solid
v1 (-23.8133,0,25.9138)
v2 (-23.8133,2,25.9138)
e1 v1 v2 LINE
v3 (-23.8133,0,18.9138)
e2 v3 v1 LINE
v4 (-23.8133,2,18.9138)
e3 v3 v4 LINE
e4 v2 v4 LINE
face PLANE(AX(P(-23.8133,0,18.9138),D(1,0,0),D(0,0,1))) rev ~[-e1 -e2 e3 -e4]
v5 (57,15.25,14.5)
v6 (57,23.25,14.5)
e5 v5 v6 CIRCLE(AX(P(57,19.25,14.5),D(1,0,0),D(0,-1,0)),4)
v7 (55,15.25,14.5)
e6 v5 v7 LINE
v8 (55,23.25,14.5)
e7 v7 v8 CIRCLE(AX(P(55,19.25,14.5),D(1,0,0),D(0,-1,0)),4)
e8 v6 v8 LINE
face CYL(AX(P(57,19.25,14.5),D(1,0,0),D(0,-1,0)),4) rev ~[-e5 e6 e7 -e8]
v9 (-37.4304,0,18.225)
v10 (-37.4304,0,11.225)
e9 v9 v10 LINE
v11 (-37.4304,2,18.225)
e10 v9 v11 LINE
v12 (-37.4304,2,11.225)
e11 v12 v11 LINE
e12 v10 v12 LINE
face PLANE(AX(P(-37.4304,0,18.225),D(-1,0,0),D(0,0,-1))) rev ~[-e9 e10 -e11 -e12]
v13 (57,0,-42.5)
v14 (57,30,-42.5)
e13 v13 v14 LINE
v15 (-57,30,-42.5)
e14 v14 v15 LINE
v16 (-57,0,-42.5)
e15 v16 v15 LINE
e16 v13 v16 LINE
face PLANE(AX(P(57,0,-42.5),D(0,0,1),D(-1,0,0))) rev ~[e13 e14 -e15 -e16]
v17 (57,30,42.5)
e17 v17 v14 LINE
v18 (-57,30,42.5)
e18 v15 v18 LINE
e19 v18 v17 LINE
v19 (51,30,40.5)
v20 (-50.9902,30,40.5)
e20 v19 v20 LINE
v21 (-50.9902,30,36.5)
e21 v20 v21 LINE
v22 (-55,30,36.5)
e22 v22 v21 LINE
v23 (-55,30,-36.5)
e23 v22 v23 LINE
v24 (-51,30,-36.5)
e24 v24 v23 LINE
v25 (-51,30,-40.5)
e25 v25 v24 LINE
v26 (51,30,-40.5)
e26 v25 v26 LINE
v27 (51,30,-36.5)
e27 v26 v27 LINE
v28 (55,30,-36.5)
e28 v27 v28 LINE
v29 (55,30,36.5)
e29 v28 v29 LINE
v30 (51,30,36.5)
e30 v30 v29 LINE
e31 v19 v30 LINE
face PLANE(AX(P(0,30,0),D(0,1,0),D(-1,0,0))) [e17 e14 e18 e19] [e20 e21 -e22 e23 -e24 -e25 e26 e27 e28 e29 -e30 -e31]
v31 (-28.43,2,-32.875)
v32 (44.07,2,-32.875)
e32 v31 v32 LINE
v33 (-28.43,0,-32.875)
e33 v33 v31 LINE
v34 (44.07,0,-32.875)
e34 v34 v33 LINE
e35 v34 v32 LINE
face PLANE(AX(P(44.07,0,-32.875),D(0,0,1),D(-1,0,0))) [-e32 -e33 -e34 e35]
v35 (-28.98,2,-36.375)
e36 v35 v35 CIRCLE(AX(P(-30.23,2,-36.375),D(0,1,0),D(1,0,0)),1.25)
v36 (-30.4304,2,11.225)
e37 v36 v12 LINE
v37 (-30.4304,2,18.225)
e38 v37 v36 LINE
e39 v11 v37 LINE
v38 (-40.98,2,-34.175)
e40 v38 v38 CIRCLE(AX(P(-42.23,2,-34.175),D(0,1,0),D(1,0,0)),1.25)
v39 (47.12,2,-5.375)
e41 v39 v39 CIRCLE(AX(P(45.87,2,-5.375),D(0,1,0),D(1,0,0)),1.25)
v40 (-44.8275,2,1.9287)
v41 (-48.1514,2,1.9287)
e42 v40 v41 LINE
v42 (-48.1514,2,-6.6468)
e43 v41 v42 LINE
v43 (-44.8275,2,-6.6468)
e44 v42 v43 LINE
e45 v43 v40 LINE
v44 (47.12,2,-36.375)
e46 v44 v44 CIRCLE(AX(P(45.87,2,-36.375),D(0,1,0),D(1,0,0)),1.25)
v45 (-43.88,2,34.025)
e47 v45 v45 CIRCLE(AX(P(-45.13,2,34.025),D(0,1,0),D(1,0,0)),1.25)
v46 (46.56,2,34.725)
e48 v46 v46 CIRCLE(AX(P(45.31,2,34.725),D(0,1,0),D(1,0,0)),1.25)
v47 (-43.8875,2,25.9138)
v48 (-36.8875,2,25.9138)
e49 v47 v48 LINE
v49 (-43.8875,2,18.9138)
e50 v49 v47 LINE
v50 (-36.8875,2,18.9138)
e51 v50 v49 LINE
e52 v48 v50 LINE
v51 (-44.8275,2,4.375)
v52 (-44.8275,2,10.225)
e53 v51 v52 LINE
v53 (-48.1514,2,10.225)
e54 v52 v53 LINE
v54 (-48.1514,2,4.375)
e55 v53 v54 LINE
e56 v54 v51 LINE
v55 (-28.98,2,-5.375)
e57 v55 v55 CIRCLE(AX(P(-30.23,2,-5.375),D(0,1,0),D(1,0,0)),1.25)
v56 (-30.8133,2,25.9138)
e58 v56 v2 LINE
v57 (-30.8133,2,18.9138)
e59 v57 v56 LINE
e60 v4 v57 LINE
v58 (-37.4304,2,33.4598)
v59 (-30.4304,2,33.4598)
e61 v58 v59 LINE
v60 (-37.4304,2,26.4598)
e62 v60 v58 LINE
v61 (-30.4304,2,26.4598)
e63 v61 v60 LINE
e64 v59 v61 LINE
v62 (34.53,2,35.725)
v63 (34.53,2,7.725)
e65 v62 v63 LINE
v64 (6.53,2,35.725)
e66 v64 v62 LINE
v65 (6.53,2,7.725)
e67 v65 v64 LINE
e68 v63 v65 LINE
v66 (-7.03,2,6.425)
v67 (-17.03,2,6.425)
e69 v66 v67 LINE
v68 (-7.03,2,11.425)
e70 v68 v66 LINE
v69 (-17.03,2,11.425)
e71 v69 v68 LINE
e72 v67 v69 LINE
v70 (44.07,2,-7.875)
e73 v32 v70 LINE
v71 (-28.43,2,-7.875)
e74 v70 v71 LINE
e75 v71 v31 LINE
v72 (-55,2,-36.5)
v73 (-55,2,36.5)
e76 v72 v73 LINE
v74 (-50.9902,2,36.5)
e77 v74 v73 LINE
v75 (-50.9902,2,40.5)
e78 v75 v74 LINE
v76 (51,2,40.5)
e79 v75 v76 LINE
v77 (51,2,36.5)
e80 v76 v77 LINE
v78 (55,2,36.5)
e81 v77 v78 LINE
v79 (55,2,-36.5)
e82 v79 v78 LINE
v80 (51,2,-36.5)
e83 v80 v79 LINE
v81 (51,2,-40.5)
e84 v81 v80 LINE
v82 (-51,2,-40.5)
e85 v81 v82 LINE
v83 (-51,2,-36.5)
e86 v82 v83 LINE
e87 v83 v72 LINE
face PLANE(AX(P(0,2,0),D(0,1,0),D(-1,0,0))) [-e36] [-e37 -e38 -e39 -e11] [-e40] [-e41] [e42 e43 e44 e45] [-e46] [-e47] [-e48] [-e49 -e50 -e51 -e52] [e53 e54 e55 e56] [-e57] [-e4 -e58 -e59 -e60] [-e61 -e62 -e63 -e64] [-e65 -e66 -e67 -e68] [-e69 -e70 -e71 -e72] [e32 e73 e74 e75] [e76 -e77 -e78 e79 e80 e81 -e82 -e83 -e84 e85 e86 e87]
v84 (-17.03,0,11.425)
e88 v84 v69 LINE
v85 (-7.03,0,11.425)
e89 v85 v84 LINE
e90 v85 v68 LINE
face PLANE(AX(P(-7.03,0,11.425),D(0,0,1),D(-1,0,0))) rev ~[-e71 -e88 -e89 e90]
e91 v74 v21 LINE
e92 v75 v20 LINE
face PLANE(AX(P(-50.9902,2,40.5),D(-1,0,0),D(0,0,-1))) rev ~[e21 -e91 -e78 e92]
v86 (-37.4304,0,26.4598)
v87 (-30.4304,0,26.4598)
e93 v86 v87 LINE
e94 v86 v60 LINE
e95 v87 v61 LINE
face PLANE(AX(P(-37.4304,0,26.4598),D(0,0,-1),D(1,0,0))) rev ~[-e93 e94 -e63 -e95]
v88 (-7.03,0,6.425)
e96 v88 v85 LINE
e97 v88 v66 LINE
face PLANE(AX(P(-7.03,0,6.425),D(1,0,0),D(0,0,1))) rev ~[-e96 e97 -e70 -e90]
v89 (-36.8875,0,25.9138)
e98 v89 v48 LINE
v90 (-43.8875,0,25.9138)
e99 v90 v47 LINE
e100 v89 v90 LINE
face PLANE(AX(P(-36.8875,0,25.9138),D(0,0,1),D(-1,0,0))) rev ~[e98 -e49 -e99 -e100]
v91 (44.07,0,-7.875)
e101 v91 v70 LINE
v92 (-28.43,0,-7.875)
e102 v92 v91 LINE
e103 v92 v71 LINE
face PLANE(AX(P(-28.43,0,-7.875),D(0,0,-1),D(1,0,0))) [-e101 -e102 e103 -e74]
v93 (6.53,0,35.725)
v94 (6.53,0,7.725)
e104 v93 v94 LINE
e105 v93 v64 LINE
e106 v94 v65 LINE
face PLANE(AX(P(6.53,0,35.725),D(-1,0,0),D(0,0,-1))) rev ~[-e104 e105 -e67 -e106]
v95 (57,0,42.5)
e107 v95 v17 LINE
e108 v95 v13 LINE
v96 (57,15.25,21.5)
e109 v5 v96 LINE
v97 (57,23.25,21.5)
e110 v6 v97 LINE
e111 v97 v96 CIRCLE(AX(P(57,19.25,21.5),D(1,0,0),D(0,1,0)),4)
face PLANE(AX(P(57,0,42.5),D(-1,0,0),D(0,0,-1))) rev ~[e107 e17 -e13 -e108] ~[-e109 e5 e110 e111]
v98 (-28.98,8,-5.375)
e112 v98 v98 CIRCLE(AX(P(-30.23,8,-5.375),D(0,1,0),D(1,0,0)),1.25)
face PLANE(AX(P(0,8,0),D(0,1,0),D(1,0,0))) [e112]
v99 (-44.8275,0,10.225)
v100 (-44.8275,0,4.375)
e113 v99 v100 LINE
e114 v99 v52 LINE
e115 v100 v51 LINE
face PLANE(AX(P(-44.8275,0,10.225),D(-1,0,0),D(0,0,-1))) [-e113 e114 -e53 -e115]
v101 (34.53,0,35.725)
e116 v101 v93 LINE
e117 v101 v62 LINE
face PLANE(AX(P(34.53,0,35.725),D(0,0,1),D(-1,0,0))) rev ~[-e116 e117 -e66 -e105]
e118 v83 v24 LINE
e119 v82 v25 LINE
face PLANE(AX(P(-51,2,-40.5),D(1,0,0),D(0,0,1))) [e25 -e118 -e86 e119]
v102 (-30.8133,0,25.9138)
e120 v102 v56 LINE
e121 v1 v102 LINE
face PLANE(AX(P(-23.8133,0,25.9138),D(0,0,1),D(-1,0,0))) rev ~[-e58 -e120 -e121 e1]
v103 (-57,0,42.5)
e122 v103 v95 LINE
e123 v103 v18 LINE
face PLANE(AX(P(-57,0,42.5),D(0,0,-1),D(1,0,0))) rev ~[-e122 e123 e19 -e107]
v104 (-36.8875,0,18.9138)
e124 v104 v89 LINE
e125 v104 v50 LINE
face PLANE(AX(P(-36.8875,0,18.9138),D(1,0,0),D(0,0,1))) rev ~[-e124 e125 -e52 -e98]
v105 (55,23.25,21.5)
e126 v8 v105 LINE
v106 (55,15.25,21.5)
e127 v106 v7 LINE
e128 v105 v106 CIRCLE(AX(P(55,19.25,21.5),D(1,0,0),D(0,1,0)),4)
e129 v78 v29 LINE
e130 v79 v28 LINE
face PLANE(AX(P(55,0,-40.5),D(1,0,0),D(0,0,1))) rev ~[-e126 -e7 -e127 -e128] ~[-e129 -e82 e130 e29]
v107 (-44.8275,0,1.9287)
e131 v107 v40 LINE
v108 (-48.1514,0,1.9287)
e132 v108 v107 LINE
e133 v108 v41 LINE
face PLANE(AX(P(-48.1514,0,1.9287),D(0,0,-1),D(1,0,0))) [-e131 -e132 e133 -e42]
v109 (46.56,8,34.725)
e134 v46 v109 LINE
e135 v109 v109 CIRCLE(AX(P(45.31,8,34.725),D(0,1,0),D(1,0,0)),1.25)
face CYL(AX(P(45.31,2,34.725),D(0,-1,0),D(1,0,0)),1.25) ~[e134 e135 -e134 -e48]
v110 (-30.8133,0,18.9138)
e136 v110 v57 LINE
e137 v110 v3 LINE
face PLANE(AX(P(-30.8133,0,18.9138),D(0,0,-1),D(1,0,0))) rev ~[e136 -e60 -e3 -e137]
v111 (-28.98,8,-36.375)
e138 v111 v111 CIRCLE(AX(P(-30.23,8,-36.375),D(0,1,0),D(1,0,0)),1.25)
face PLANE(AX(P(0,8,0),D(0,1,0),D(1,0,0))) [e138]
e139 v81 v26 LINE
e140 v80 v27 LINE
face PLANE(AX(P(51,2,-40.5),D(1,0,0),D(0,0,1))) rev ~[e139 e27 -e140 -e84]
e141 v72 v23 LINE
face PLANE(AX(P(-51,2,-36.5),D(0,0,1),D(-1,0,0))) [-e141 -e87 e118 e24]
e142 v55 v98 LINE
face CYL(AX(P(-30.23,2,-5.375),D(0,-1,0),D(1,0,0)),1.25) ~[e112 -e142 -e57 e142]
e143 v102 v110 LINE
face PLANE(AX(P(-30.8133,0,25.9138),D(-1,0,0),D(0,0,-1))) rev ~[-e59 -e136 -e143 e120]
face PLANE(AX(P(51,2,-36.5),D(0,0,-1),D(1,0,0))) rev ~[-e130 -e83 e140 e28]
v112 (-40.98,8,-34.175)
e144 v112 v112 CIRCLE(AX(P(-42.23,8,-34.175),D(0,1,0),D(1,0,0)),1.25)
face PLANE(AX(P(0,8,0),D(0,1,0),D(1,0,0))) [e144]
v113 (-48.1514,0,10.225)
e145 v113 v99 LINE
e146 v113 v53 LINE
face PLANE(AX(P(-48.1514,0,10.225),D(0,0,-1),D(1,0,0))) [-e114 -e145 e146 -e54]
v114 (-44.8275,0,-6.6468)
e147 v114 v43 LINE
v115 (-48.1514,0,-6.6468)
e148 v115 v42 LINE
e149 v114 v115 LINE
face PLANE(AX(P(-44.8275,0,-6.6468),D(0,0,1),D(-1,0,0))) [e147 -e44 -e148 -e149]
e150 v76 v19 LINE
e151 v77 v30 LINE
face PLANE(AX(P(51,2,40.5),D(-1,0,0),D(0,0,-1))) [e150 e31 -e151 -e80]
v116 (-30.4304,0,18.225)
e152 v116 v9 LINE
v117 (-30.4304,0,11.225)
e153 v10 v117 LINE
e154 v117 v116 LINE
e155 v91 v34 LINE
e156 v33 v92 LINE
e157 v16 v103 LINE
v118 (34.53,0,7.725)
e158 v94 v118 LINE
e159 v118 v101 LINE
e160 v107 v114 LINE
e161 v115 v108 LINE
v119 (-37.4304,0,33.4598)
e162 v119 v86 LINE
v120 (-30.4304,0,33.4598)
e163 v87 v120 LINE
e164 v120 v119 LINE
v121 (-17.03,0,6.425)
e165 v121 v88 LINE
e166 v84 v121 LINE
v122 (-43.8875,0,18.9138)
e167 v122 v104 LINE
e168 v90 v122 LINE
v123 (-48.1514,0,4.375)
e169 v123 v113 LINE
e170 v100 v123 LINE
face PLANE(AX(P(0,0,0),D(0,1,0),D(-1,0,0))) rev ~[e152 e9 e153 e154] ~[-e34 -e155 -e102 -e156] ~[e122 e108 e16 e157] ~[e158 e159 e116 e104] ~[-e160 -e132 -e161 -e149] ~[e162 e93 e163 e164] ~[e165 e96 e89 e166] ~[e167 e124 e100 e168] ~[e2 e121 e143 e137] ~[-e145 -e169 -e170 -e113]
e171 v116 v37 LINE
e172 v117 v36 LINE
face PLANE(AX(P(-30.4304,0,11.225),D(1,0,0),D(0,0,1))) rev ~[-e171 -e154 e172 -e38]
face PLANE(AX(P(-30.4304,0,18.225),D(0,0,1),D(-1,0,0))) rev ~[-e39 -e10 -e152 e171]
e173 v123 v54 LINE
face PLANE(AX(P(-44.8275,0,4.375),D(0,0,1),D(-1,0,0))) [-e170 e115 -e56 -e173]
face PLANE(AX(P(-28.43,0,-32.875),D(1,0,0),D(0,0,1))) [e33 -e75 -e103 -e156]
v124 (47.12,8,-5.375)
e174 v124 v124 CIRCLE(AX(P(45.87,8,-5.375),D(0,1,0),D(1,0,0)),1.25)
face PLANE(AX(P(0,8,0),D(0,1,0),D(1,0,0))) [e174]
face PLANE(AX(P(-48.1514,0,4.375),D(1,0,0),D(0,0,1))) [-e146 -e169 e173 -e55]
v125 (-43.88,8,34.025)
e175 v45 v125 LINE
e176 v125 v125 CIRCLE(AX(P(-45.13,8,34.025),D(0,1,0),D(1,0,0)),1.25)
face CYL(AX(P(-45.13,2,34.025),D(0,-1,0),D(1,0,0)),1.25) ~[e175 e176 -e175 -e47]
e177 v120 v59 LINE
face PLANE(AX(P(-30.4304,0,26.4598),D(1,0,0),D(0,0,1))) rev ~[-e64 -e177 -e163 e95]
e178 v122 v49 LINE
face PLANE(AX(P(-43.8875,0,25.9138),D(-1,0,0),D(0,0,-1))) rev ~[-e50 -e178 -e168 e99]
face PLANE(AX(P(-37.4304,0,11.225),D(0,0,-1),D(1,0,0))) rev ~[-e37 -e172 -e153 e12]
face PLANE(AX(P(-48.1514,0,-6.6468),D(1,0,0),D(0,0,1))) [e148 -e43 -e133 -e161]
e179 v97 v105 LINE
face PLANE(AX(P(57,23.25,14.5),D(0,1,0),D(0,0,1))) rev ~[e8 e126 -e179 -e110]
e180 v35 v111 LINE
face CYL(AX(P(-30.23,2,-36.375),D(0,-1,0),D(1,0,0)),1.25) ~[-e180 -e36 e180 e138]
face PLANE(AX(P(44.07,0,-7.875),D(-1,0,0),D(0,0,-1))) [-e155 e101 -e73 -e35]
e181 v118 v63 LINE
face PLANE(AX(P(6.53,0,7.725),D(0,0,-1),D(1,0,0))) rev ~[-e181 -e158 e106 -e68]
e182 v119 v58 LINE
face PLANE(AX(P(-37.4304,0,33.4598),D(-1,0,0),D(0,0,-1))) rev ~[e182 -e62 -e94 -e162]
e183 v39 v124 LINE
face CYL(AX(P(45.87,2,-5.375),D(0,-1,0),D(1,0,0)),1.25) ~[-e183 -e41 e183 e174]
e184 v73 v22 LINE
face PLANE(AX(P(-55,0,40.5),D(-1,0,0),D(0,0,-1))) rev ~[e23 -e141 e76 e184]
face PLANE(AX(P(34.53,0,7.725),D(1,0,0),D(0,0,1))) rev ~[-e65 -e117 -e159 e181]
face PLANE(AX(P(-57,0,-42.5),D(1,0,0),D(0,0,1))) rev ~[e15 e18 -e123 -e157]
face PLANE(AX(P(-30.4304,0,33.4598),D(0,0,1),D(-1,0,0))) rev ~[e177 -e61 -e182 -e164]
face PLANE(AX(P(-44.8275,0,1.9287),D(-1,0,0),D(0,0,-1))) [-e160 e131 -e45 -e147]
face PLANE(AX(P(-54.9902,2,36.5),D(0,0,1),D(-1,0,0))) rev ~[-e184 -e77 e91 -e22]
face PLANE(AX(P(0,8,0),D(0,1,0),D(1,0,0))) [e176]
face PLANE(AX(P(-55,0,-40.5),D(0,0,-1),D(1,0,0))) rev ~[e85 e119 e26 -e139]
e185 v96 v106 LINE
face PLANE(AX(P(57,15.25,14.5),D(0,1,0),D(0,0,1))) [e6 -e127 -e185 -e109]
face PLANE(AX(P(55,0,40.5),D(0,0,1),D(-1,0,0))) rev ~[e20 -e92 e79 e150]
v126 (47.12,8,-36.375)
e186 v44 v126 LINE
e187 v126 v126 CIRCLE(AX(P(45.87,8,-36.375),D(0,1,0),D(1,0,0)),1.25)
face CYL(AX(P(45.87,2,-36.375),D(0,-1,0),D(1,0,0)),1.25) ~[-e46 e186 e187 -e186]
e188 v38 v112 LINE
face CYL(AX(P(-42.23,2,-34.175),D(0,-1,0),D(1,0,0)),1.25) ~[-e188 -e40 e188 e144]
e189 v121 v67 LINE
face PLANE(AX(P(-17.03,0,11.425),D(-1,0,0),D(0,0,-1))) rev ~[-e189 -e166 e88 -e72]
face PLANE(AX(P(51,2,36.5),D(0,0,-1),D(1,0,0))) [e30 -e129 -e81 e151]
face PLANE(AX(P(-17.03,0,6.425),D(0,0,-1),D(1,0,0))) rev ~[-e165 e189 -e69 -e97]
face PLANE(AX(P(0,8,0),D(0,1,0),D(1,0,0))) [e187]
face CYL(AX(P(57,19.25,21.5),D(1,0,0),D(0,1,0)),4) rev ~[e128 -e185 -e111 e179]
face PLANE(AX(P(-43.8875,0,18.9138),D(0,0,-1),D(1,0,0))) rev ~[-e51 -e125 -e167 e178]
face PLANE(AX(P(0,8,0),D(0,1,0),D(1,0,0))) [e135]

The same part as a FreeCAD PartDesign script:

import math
import FreeCAD as App
import Part
import Sketcher

V = App.Vector
Q = App.Units.Quantity

doc = App.newDocument("Part")
body = doc.addObject("PartDesign::Body", "Body")

# Sketch on XZ plane
sketch1 = body.newObject("Sketcher::SketchObject", "Sketch")
sketch1.AttachmentSupport = (doc.getObject("XZ_Plane"), [""])
sketch1.MapMode = "FlatFace"
sketch1.addGeometry([
    Part.LineSegment(V(-57, -42, 0), V(-57, 42, 0)),  # 0
    Part.LineSegment(V(-57, 42, 0), V(57, 42, 0)),  # 1
    Part.LineSegment(V(57, 42, 0), V(57, -42, 0)),  # 2
    Part.LineSegment(V(57, -42, 0), V(-57, -42, 0)),  # 3
    Part.LineSegment(V(-55, 40, 0), V(-55, -40, 0)),  # 4
    Part.LineSegment(V(-55, -40, 0), V(55, -40, 0)),  # 5
    Part.LineSegment(V(55, -40, 0), V(55, 40, 0)),  # 6
    Part.LineSegment(V(55, 40, 0), V(-55, 40, 0)),  # 7
], False)
sketch1.addConstraint([
    Sketcher.Constraint("Coincident", 0, 2, 1, 1),
    Sketcher.Constraint("Coincident", 1, 2, 2, 1),
    Sketcher.Constraint("Coincident", 2, 2, 3, 1),
    Sketcher.Constraint("Coincident", 3, 2, 0, 1),
    Sketcher.Constraint("Coincident", 4, 2, 5, 1),
    Sketcher.Constraint("Coincident", 5, 2, 6, 1),
    Sketcher.Constraint("Coincident", 6, 2, 7, 1),
    Sketcher.Constraint("Coincident", 7, 2, 4, 1),
    Sketcher.Constraint("Vertical", 0),
    Sketcher.Constraint("Horizontal", 1),
    Sketcher.Constraint("Vertical", 2),
    Sketcher.Constraint("Horizontal", 3),
    Sketcher.Constraint("Vertical", 4),
    Sketcher.Constraint("Horizontal", 5),
    Sketcher.Constraint("Vertical", 6),
    Sketcher.Constraint("Horizontal", 7),
    Sketcher.Constraint("Symmetric", 0, 2, 2, 2, -1, 1),
    Sketcher.Constraint("Symmetric", 4, 2, 6, 2, -1, 1),
    Sketcher.Constraint("DistanceX", 1, 1, 1, 2, Q("114 mm")),
    Sketcher.Constraint("DistanceX", 5, 1, 5, 2, Q("110 mm")),
    Sketcher.Constraint("DistanceY", 0, 1, 0, 2, Q("85 mm")),
    Sketcher.Constraint("DistanceY", 4, 2, 4, 1, Q("81 mm")),
])
pad1 = body.newObject("PartDesign::Pad", "Pad")
pad1.Profile = sketch1
pad1.Length = 30
pad1.Reversed = True

# Sketch on XZ plane
sketch2 = body.newObject("Sketcher::SketchObject", "Sketch001")
sketch2.AttachmentSupport = (doc.getObject("XZ_Plane"), [""])
sketch2.MapMode = "FlatFace"
sketch2.addGeometry([
    Part.LineSegment(V(55, 40, 0), V(55, -40, 0)),
    Part.LineSegment(V(55, -40, 0), V(-55, -40, 0)),
    Part.LineSegment(V(-55, -40, 0), V(-55, 40, 0)),
    Part.LineSegment(V(-55, 40, 0), V(55, 40, 0)),
], False)
sketch2.addConstraint([
    Sketcher.Constraint("Coincident", 0, 2, 1, 1),
    Sketcher.Constraint("Coincident", 1, 2, 2, 1),
    Sketcher.Constraint("Coincident", 2, 2, 3, 1),
    Sketcher.Constraint("Coincident", 3, 2, 0, 1),
    Sketcher.Constraint("Vertical", 0),
    Sketcher.Constraint("Horizontal", 1),
    Sketcher.Constraint("Vertical", 2),
    Sketcher.Constraint("Horizontal", 3),
    Sketcher.Constraint("Symmetric", 0, 2, 2, 2, -1, 1),
    Sketcher.Constraint("DistanceX", 1, 2, 1, 1, Q("110 mm")),
    Sketcher.Constraint("DistanceY", 0, 2, 0, 1, Q("81 mm")),
])
pad2 = body.newObject("PartDesign::Pad", "Pad001")
pad2.Profile = sketch2
pad2.Length = 2
pad2.Reversed = True

# Sketch on XZ plane
sketch3 = body.newObject("Sketcher::SketchObject", "Sketch002")
sketch3.AttachmentSupport = (doc.getObject("XZ_Plane"), [""])
sketch3.MapMode = "FlatFace"
sketch3.addGeometry([
    Part.LineSegment(V(-28.4, -32.9, 0), V(44.1, -32.9, 0)),  # 0
    Part.LineSegment(V(44.1, -32.9, 0), V(44.1, -7.9, 0)),  # 1
    Part.LineSegment(V(44.1, -7.9, 0), V(-28.4, -7.9, 0)),  # 2
    Part.LineSegment(V(-28.4, -7.9, 0), V(-28.4, -32.9, 0)),  # 3
    Part.LineSegment(V(34.5, 7.7, 0), V(34.5, 35.7, 0)),  # 4
    Part.LineSegment(V(34.5, 35.7, 0), V(6.5, 35.7, 0)),  # 5
    Part.LineSegment(V(6.5, 35.7, 0), V(6.5, 7.7, 0)),  # 6
    Part.LineSegment(V(6.5, 7.7, 0), V(34.5, 7.7, 0)),  # 7
    Part.LineSegment(V(-7, 6.4, 0), V(-7, 11.4, 0)),  # 8
    Part.LineSegment(V(-7, 11.4, 0), V(-17, 11.4, 0)),  # 9
    Part.LineSegment(V(-17, 11.4, 0), V(-17, 6.4, 0)),  # 10
    Part.LineSegment(V(-17, 6.4, 0), V(-7, 6.4, 0)),  # 11
    Part.LineSegment(V(-30.4, 11.2, 0), V(-30.4, 18.2, 0)),  # 12
    Part.LineSegment(V(-30.4, 18.2, 0), V(-37.4, 18.2, 0)),  # 13
    Part.LineSegment(V(-37.4, 18.2, 0), V(-37.4, 11.2, 0)),  # 14
    Part.LineSegment(V(-37.4, 11.2, 0), V(-30.4, 11.2, 0)),  # 15
    Part.LineSegment(V(-30.4, 26.5, 0), V(-30.4, 33.5, 0)),  # 16
    Part.LineSegment(V(-30.4, 33.5, 0), V(-37.4, 33.5, 0)),  # 17
    Part.LineSegment(V(-37.4, 33.5, 0), V(-37.4, 26.5, 0)),  # 18
    Part.LineSegment(V(-37.4, 26.5, 0), V(-30.4, 26.5, 0)),  # 19
    Part.LineSegment(V(-23.8, 18.9, 0), V(-23.8, 25.9, 0)),  # 20
    Part.LineSegment(V(-23.8, 25.9, 0), V(-30.8, 25.9, 0)),  # 21
    Part.LineSegment(V(-30.8, 25.9, 0), V(-30.8, 18.9, 0)),  # 22
    Part.LineSegment(V(-30.8, 18.9, 0), V(-23.8, 18.9, 0)),  # 23
    Part.LineSegment(V(-36.9, 18.9, 0), V(-36.9, 25.9, 0)),  # 24
    Part.LineSegment(V(-36.9, 25.9, 0), V(-43.9, 25.9, 0)),  # 25
    Part.LineSegment(V(-43.9, 25.9, 0), V(-43.9, 18.9, 0)),  # 26
    Part.LineSegment(V(-43.9, 18.9, 0), V(-36.9, 18.9, 0)),  # 27
    Part.LineSegment(V(-48.2, -6.6, 0), V(-44.8, -6.6, 0)),  # 28
    Part.LineSegment(V(-44.8, -6.6, 0), V(-44.8, 1.9, 0)),  # 29
    Part.LineSegment(V(-44.8, 1.9, 0), V(-48.2, 1.9, 0)),  # 30
    Part.LineSegment(V(-48.2, 1.9, 0), V(-48.2, -6.6, 0)),  # 31
    Part.LineSegment(V(-48.2, 4.4, 0), V(-44.8, 4.4, 0)),  # 32
    Part.LineSegment(V(-44.8, 4.4, 0), V(-44.8, 10.2, 0)),  # 33
    Part.LineSegment(V(-44.8, 10.2, 0), V(-48.2, 10.2, 0)),  # 34
    Part.LineSegment(V(-48.2, 10.2, 0), V(-48.2, 4.4, 0)),  # 35
], False)
sketch3.addConstraint([
    Sketcher.Constraint("Coincident", 0, 2, 1, 1),
    Sketcher.Constraint("Coincident", 1, 2, 2, 1),
    Sketcher.Constraint("Coincident", 2, 2, 3, 1),
    Sketcher.Constraint("Coincident", 3, 2, 0, 1),
    Sketcher.Constraint("Coincident", 4, 2, 5, 1),
    Sketcher.Constraint("Coincident", 5, 2, 6, 1),
    Sketcher.Constraint("Coincident", 6, 2, 7, 1),
    Sketcher.Constraint("Coincident", 7, 2, 4, 1),
    Sketcher.Constraint("Coincident", 8, 2, 9, 1),
    Sketcher.Constraint("Coincident", 9, 2, 10, 1),
    Sketcher.Constraint("Coincident", 10, 2, 11, 1),
    Sketcher.Constraint("Coincident", 11, 2, 8, 1),
    Sketcher.Constraint("Coincident", 12, 2, 13, 1),
    Sketcher.Constraint("Coincident", 13, 2, 14, 1),
    Sketcher.Constraint("Coincident", 14, 2, 15, 1),
    Sketcher.Constraint("Coincident", 15, 2, 12, 1),
    Sketcher.Constraint("Coincident", 16, 2, 17, 1),
    Sketcher.Constraint("Coincident", 17, 2, 18, 1),
    Sketcher.Constraint("Coincident", 18, 2, 19, 1),
    Sketcher.Constraint("Coincident", 19, 2, 16, 1),
    Sketcher.Constraint("Coincident", 20, 2, 21, 1),
    Sketcher.Constraint("Coincident", 21, 2, 22, 1),
    Sketcher.Constraint("Coincident", 22, 2, 23, 1),
    Sketcher.Constraint("Coincident", 23, 2, 20, 1),
    Sketcher.Constraint("Coincident", 24, 2, 25, 1),
    Sketcher.Constraint("Coincident", 25, 2, 26, 1),
    Sketcher.Constraint("Coincident", 26, 2, 27, 1),
    Sketcher.Constraint("Coincident", 27, 2, 24, 1),
    Sketcher.Constraint("Coincident", 28, 2, 29, 1),
    Sketcher.Constraint("Coincident", 29, 2, 30, 1),
    Sketcher.Constraint("Coincident", 30, 2, 31, 1),
    Sketcher.Constraint("Coincident", 31, 2, 28, 1),
    Sketcher.Constraint("Coincident", 32, 2, 33, 1),
    Sketcher.Constraint("Coincident", 33, 2, 34, 1),
    Sketcher.Constraint("Coincident", 34, 2, 35, 1),
    Sketcher.Constraint("Coincident", 35, 2, 32, 1),
    Sketcher.Constraint("Horizontal", 0),
    Sketcher.Constraint("Vertical", 1),
    Sketcher.Constraint("Horizontal", 2),
    Sketcher.Constraint("Vertical", 3),
    Sketcher.Constraint("Vertical", 4),
    Sketcher.Constraint("Horizontal", 5),
    Sketcher.Constraint("Vertical", 6),
    Sketcher.Constraint("Horizontal", 7),
    Sketcher.Constraint("Vertical", 8),
    Sketcher.Constraint("Horizontal", 9),
    Sketcher.Constraint("Vertical", 10),
    Sketcher.Constraint("Horizontal", 11),
    Sketcher.Constraint("Vertical", 12),
    Sketcher.Constraint("Horizontal", 13),
    Sketcher.Constraint("Vertical", 14),
    Sketcher.Constraint("Horizontal", 15),
    Sketcher.Constraint("Vertical", 16),
    Sketcher.Constraint("Horizontal", 17),
    Sketcher.Constraint("Vertical", 18),
    Sketcher.Constraint("Horizontal", 19),
    Sketcher.Constraint("Vertical", 20),
    Sketcher.Constraint("Horizontal", 21),
    Sketcher.Constraint("Vertical", 22),
    Sketcher.Constraint("Horizontal", 23),
    Sketcher.Constraint("Vertical", 24),
    Sketcher.Constraint("Horizontal", 25),
    Sketcher.Constraint("Vertical", 26),
    Sketcher.Constraint("Horizontal", 27),
    Sketcher.Constraint("Horizontal", 28),
    Sketcher.Constraint("Vertical", 29),
    Sketcher.Constraint("Horizontal", 30),
    Sketcher.Constraint("Vertical", 31),
    Sketcher.Constraint("Horizontal", 32),
    Sketcher.Constraint("Vertical", 33),
    Sketcher.Constraint("Horizontal", 34),
    Sketcher.Constraint("Vertical", 35),
    Sketcher.Constraint("Horizontal", 21, 2, 24, 2),
    Sketcher.Constraint("Horizontal", 23, 2, 26, 2),
    Sketcher.Constraint("Vertical", 15, 2, 16, 2),
    Sketcher.Constraint("Vertical", 14, 2, 17, 2),
    Sketcher.Constraint("Vertical", 29, 2, 32, 2),
    Sketcher.Constraint("Vertical", 31, 2, 34, 2),
    Sketcher.Constraint("Equal", 19, 21),
    Sketcher.Constraint("Equal", 23, 25),
    Sketcher.Constraint("Equal", 7, 4),
    Sketcher.Constraint("Equal", 27, 12),
    Sketcher.Constraint("Equal", 14, 16),
    Sketcher.Constraint("Equal", 18, 20),
    Sketcher.Constraint("DistanceX", 5, 2, 5, 1, Q("28 mm")),
    Sketcher.Constraint("DistanceX", 9, 2, 9, 1, Q("10 mm")),
    Sketcher.Constraint("DistanceX", 13, 2, 13, 1, Q("7 mm")),
    Sketcher.Constraint("DistanceY", 1, 1, 1, 2, Q("25 mm")),
    Sketcher.Constraint("DistanceY", 8, 1, 8, 2, Q("5 mm")),
    Sketcher.Constraint("DistanceX", 0, 1, 0, 2, Q("72.5 mm")),
    Sketcher.Constraint("DistanceY", 33, 2, 14, 2, Q("1 mm")),
    Sketcher.Constraint("DistanceY", 33, 1, 33, 2, Q("5.85 mm")),
    Sketcher.Constraint("DistanceY", 1, 2, 4, 2, Q("43.6 mm")),
    Sketcher.Constraint("DistanceY", 6, 2, 8, 2, Q("3.7 mm")),
    Sketcher.Constraint("DistanceX", 2, 2, 8, 2, Q("21.4 mm")),
    Sketcher.Constraint("DistanceY", 9, 2, 12, 2, Q("6.8 mm")),
    Sketcher.Constraint("DistanceX", 28, 1, 28, 2, Q("3.324 mm")),
    Sketcher.Constraint("DistanceX", -1, 1, 0, 2, Q("44.07 mm")),
    Sketcher.Constraint("DistanceX", -1, 1, 4, 2, Q("34.53 mm")),
    Sketcher.Constraint("DistanceX", 28, 2, 26, 2, Q("0.94 mm")),
    Sketcher.Constraint("DistanceY", 29, 1, 29, 2, Q("8.5755 mm")),
    Sketcher.Constraint("DistanceY", 0, 2, -1, 1, Q("32.875 mm")),
    Sketcher.Constraint("DistanceX", 19, 2, 20, 2, Q("6.617 mm")),
    Sketcher.Constraint("DistanceY", 20, 2, 19, 2, Q("0.546 mm")),
    Sketcher.Constraint("DistanceX", 18, 2, 24, 2, Q("0.543 mm")),
    Sketcher.Constraint("DistanceY", 29, 2, 26, 2, Q("16.985 mm")),
    Sketcher.Constraint("DistanceX", 12, 2, -1, 1, Q("30.4304 mm")),
    Sketcher.Constraint("DistanceY", -1, 1, 16, 2, Q("33.4598 mm")),
])
pocket1 = body.newObject("PartDesign::Pocket", "Pocket")
pocket1.Profile = sketch3
pocket1.Length = 30

# Sketch on XZ plane
sketch4 = body.newObject("Sketcher::SketchObject", "Sketch003")
sketch4.AttachmentSupport = (doc.getObject("XZ_Plane"), [""])
sketch4.MapMode = "FlatFace"
sketch4.AttachmentOffset = App.Placement(V(0, 0, -2), App.Rotation())
sketch4.addGeometry([
    Part.Circle(V(-45.1, 34, 0), V(0, 0, 1), 1.2),  # 0
    Part.Circle(V(-42.2, -34.2, 0), V(0, 0, 1), 1.2),  # 1
    Part.Circle(V(45.3, 34.7, 0), V(0, 0, 1), 1.2),  # 2
    Part.Circle(V(-30.2, -36.4, 0), V(0, 0, 1), 1.2),  # 3
    Part.Circle(V(45.9, -36.4, 0), V(0, 0, 1), 1.2),  # 4
    Part.Circle(V(-30.2, -5.4, 0), V(0, 0, 1), 1.2),  # 5
    Part.Circle(V(45.9, -5.4, 0), V(0, 0, 1), 1.2),  # 6
], False)
sketch4.addConstraint([
    Sketcher.Constraint("Equal", 0, 1),
    Sketcher.Constraint("Equal", 1, 2),
    Sketcher.Constraint("Equal", 2, 3),
    Sketcher.Constraint("Equal", 3, 4),
    Sketcher.Constraint("Equal", 4, 5),
    Sketcher.Constraint("Equal", 5, 6),
    Sketcher.Constraint("Horizontal", 3, 3, 4, 3),
    Sketcher.Constraint("Horizontal", 5, 3, 6, 3),
    Sketcher.Constraint("Vertical", 3, 3, 5, 3),
    Sketcher.Constraint("Vertical", 4, 3, 6, 3),
    Sketcher.Constraint("Diameter", 0, Q("2.5 mm")),
    Sketcher.Constraint("DistanceX", 1, 3, 3, 3, Q("12 mm")),
    Sketcher.Constraint("DistanceX", 0, 3, 4, 3, Q("91 mm")),
    Sketcher.Constraint("DistanceY", 3, 3, 5, 3, Q("31 mm")),
    Sketcher.Constraint("DistanceX", 0, 3, 1, 3, Q("2.9 mm")),
    Sketcher.Constraint("DistanceY", 1, 3, 0, 3, Q("68.2 mm")),
    Sketcher.Constraint("DistanceY", 0, 3, 2, 3, Q("0.7 mm")),
    Sketcher.Constraint("DistanceY", 3, 3, 1, 3, Q("2.2 mm")),
    Sketcher.Constraint("DistanceX", 0, 3, -1, 1, Q("45.13 mm")),
    Sketcher.Constraint("DistanceX", -1, 1, 2, 3, Q("45.31 mm")),
    Sketcher.Constraint("DistanceY", -1, 1, 0, 3, Q("34.025 mm")),
])
pad3 = body.newObject("PartDesign::Pad", "Pad002")
pad3.Profile = sketch4
pad3.Length = 6
pad3.Reversed = True

# Sketch on XZ plane
sketch5 = body.newObject("Sketcher::SketchObject", "Sketch004")
sketch5.AttachmentSupport = (doc.getObject("XZ_Plane"), [""])
sketch5.MapMode = "FlatFace"
sketch5.AttachmentOffset = App.Placement(V(0, 0, -2), App.Rotation())
sketch5.addGeometry([
    Part.LineSegment(V(51, 40.5, 0), V(55, 40.5, 0)),  # 0
    Part.LineSegment(V(55, 40.5, 0), V(55, 36.5, 0)),  # 1
    Part.LineSegment(V(55, 36.5, 0), V(51, 36.5, 0)),  # 2
    Part.LineSegment(V(51, 36.5, 0), V(51, 40.5, 0)),  # 3
    Part.LineSegment(V(-55, 40.5, 0), V(-51, 40.5, 0)),  # 4
    Part.LineSegment(V(-51, 40.5, 0), V(-51, 36.5, 0)),  # 5
    Part.LineSegment(V(-51, 36.5, 0), V(-55, 36.5, 0)),  # 6
    Part.LineSegment(V(-55, 36.5, 0), V(-55, 40.5, 0)),  # 7
    Part.LineSegment(V(51, -36.5, 0), V(55, -36.5, 0)),  # 8
    Part.LineSegment(V(55, -36.5, 0), V(55, -40.5, 0)),  # 9
    Part.LineSegment(V(55, -40.5, 0), V(51, -40.5, 0)),  # 10
    Part.LineSegment(V(51, -40.5, 0), V(51, -36.5, 0)),  # 11
    Part.LineSegment(V(-51, -36.5, 0), V(-51, -40.5, 0)),  # 12
    Part.LineSegment(V(-51, -40.5, 0), V(-55, -40.5, 0)),  # 13
    Part.LineSegment(V(-55, -40.5, 0), V(-55, -36.5, 0)),  # 14
    Part.LineSegment(V(-55, -36.5, 0), V(-51, -36.5, 0)),  # 15
], False)
sketch5.addConstraint([
    Sketcher.Constraint("Coincident", 0, 2, 1, 1),
    Sketcher.Constraint("Coincident", 1, 2, 2, 1),
    Sketcher.Constraint("Coincident", 2, 2, 3, 1),
    Sketcher.Constraint("Coincident", 3, 2, 0, 1),
    Sketcher.Constraint("Coincident", 4, 2, 5, 1),
    Sketcher.Constraint("Coincident", 5, 2, 6, 1),
    Sketcher.Constraint("Coincident", 6, 2, 7, 1),
    Sketcher.Constraint("Coincident", 7, 2, 4, 1),
    Sketcher.Constraint("Coincident", 8, 2, 9, 1),
    Sketcher.Constraint("Coincident", 9, 2, 10, 1),
    Sketcher.Constraint("Coincident", 10, 2, 11, 1),
    Sketcher.Constraint("Coincident", 11, 2, 8, 1),
    Sketcher.Constraint("Coincident", 12, 2, 13, 1),
    Sketcher.Constraint("Coincident", 13, 2, 14, 1),
    Sketcher.Constraint("Coincident", 14, 2, 15, 1),
    Sketcher.Constraint("Coincident", 15, 2, 12, 1),
    Sketcher.Constraint("Horizontal", 0),
    Sketcher.Constraint("Vertical", 1),
    Sketcher.Constraint("Horizontal", 2),
    Sketcher.Constraint("Vertical", 3),
    Sketcher.Constraint("Horizontal", 4),
    Sketcher.Constraint("Vertical", 5),
    Sketcher.Constraint("Horizontal", 6),
    Sketcher.Constraint("Vertical", 7),
    Sketcher.Constraint("Horizontal", 8),
    Sketcher.Constraint("Vertical", 9),
    Sketcher.Constraint("Horizontal", 10),
    Sketcher.Constraint("Vertical", 11),
    Sketcher.Constraint("Vertical", 12),
    Sketcher.Constraint("Horizontal", 13),
    Sketcher.Constraint("Vertical", 14),
    Sketcher.Constraint("Horizontal", 15),
    Sketcher.Constraint("Symmetric", 6, 2, 8, 2, -1, 1),
    Sketcher.Constraint("Symmetric", 3, 2, 12, 2, -1, 1),
    Sketcher.Constraint("Symmetric", 1, 2, 14, 2, -1, 1),
    Sketcher.Constraint("Symmetric", 1, 2, 6, 2, -2),
    Sketcher.Constraint("Symmetric", 10, 2, 12, 2, -2),
    Sketcher.Constraint("Horizontal", 3, 2, 4, 2),
    Sketcher.Constraint("Equal", 15, 1),
    Sketcher.Constraint("DistanceX", 0, 1, 0, 2, Q("4 mm")),
    Sketcher.Constraint("DistanceX", 6, 2, 1, 2, Q("110 mm")),
    Sketcher.Constraint("DistanceY", 9, 2, 0, 2, Q("81 mm")),
    Sketcher.Constraint("DistanceX", 4, 1, 4, 2, Q("4.0098 mm")),
])
pad4 = body.newObject("PartDesign::Pad", "Pad003")
pad4.Profile = sketch5
pad4.Length = 28
pad4.Reversed = True

# Sketch on YZ plane
sketch6 = body.newObject("Sketcher::SketchObject", "Sketch005")
sketch6.AttachmentSupport = (doc.getObject("YZ_Plane"), [""])
sketch6.MapMode = "FlatFace"
sketch6.AttachmentOffset = App.Placement(V(0, 0, 57), App.Rotation())
sketch6.addGeometry([
    Part.LineSegment(V(15.2, 21.5, 0), V(15.2, 14.5, 0)),
    Part.ArcOfCircle(Part.Circle(V(19.2, 14.5, 0), V(0, 0, 1), 4), math.radians(180), math.radians(360)),
    Part.LineSegment(V(23.2, 14.5, 0), V(23.2, 21.5, 0)),
    Part.ArcOfCircle(Part.Circle(V(19.2, 21.5, 0), V(0, 0, 1), 4), math.radians(0), math.radians(180)),
], False)
sketch6.addConstraint([
    Sketcher.Constraint("Tangent", 0, 2, 1, 1),
    Sketcher.Constraint("Tangent", 1, 2, 2, 1),
    Sketcher.Constraint("Tangent", 2, 2, 3, 1),
    Sketcher.Constraint("Tangent", 3, 2, 0, 1),
    Sketcher.Constraint("Vertical", 0),
    Sketcher.Constraint("Vertical", 2),
    Sketcher.Constraint("Radius", 1, Q("4 mm")),
    Sketcher.Constraint("DistanceY", 0, 2, 0, 1, Q("7 mm")),
    Sketcher.Constraint("DistanceY", -1, 1, 1, 3, Q("14.5 mm")),
    Sketcher.Constraint("DistanceX", -1, 1, 1, 3, Q("19.25 mm")),
])
pocket2 = body.newObject("PartDesign::Pocket", "Pocket001")
pocket2.Profile = sketch6
pocket2.Length = 3

doc.recompute()
